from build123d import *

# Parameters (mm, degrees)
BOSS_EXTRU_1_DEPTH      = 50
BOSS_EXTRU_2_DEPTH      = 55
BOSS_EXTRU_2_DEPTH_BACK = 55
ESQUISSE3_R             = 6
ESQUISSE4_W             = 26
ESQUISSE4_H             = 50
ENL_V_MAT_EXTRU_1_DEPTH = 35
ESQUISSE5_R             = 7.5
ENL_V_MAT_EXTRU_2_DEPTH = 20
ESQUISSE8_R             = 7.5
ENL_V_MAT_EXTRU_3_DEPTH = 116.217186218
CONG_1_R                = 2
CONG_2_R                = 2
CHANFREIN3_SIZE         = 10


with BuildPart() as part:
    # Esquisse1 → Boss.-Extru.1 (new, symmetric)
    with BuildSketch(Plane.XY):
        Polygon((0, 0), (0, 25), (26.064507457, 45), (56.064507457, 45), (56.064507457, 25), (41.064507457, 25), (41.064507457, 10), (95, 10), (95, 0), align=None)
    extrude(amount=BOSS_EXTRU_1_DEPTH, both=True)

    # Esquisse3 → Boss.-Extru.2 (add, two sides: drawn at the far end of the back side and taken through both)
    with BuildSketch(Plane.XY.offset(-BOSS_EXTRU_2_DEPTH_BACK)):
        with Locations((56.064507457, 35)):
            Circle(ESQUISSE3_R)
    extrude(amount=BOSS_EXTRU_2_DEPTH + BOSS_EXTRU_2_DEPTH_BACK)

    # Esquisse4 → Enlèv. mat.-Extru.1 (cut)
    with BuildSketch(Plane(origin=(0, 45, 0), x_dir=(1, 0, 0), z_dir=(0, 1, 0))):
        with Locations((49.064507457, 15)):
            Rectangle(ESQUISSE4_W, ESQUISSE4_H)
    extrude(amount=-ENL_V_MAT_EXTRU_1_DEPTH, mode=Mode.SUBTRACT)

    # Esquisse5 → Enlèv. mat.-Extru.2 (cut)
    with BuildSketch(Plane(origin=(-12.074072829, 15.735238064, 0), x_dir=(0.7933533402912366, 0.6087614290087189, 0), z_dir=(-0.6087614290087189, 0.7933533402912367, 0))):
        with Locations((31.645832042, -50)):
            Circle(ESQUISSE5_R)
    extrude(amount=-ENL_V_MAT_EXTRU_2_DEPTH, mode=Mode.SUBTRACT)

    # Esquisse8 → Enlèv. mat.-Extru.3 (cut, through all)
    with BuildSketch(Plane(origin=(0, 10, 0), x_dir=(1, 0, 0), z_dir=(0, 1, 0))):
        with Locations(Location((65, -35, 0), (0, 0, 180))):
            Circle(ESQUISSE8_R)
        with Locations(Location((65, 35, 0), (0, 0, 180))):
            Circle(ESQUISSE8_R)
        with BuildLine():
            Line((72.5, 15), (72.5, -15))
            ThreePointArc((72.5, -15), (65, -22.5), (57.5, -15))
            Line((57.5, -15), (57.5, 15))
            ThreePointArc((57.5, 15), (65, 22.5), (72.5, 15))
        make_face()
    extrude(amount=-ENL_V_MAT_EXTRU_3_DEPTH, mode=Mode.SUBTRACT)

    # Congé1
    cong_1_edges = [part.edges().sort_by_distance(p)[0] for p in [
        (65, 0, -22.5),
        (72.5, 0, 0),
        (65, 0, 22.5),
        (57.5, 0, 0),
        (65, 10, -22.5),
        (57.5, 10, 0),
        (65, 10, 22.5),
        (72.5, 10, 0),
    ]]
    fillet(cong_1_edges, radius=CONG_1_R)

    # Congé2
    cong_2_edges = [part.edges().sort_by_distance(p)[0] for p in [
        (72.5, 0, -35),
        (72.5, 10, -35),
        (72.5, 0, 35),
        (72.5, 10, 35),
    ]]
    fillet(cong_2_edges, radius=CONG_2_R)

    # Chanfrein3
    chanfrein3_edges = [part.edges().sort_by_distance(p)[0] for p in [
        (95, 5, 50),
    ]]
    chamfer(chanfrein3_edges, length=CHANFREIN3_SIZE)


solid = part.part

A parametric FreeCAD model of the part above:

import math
import FreeCAD as App
import Part
import Sketcher
from FreeCAD import Vector
Q = App.Units.Quantity


def edges_at(feature, points):
    """Names of the edges that pass closest to the given points."""
    edges = feature.Shape.Edges
    near = lambda p: min(range(len(edges)), key=lambda i: edges[i].distToShape(Part.Vertex(*p))[0])
    return sorted({f"Edge{near(p) + 1}" for p in points})

doc = App.newDocument("Part")
params = doc.addObject("Spreadsheet::Sheet", "Params")
for row, (alias, value) in enumerate([
    ("sketch1_width", "95 mm"),
    ("sketch1_width2", "15 mm"),
    ("sketch1_width3", "30 mm"),
    ("sketch1_height", "25 mm"),
    ("sketch1_height2", "20 mm"),
    ("pad1_length", "100 mm"),
    ("sketch2_diameter", "12 mm"),
    ("pad2_length", "55 mm"),
    ("pad2_length2", "55 mm"),
    ("sketch3_width", "26 mm"),
    ("sketch3_height", "50 mm"),
    ("pocket1_length", "35 mm"),
    ("sketch4_diameter", "15 mm"),
    ("pocket2_length", "20 mm"),
    ("sketch5_diameter", "15 mm"),
    ("sketch5_height", "30 mm"),
    ("fillet_radius", "2 mm"),
    ("fillet2_radius", "2 mm"),
    ("chamfer_size", "10 mm"),
], start=1):
    params.set(f"A{row}", alias)
    params.set(f"B{row}", "=" + value)
    params.setAlias(f"B{row}", alias)

body = doc.addObject("PartDesign::Body", "Body")

# Sketch on XY plane
sketch1 = body.newObject("Sketcher::SketchObject", "Sketch")
sketch1.AttachmentSupport = (doc.getObject("XY_Plane"), [""])
sketch1.MapMode = "FlatFace"
sketch1.addGeometry(Part.LineSegment(Vector(0, 25, 0), Vector(0, 0, 0)), False)
sketch1.addGeometry(Part.LineSegment(Vector(0, 0, 0), Vector(95, 0, 0)), False)
sketch1.addGeometry(Part.LineSegment(Vector(95, 0, 0), Vector(95, 10, 0)), False)
sketch1.addGeometry(Part.LineSegment(Vector(95, 10, 0), Vector(41, 10, 0)), False)
sketch1.addGeometry(Part.LineSegment(Vector(41, 10, 0), Vector(41, 25, 0)), False)
sketch1.addGeometry(Part.LineSegment(Vector(41, 25, 0), Vector(56, 25, 0)), False)
sketch1.addGeometry(Part.LineSegment(Vector(56, 25, 0), Vector(56, 45, 0)), False)
sketch1.addGeometry(Part.LineSegment(Vector(56, 45, 0), Vector(26, 45, 0)), False)
sketch1.addGeometry(Part.LineSegment(Vector(26, 45, 0), Vector(0, 25, 0)), False)
sketch1.addConstraint(Sketcher.Constraint("Coincident", 0, 2, 1, 1))
sketch1.addConstraint(Sketcher.Constraint("Coincident", 1, 2, 2, 1))
sketch1.addConstraint(Sketcher.Constraint("Coincident", 2, 2, 3, 1))
sketch1.addConstraint(Sketcher.Constraint("Coincident", 3, 2, 4, 1))
sketch1.addConstraint(Sketcher.Constraint("Coincident", 4, 2, 5, 1))
sketch1.addConstraint(Sketcher.Constraint("Coincident", 5, 2, 6, 1))
sketch1.addConstraint(Sketcher.Constraint("Coincident", 6, 2, 7, 1))
sketch1.addConstraint(Sketcher.Constraint("Coincident", 7, 2, 8, 1))
sketch1.addConstraint(Sketcher.Constraint("Coincident", 8, 2, 0, 1))
sketch1.addConstraint(Sketcher.Constraint("Vertical", 0))
sketch1.addConstraint(Sketcher.Constraint("Horizontal", 1))
sketch1.addConstraint(Sketcher.Constraint("Vertical", 2))
sketch1.addConstraint(Sketcher.Constraint("Horizontal", 3))
sketch1.addConstraint(Sketcher.Constraint("Vertical", 4))
sketch1.addConstraint(Sketcher.Constraint("Horizontal", 5))
sketch1.addConstraint(Sketcher.Constraint("Vertical", 6))
sketch1.addConstraint(Sketcher.Constraint("Horizontal", 7))
sketch1.addConstraint(Sketcher.Constraint("Coincident", 0, 2, -1, 1))
sketch1.addConstraint(Sketcher.Constraint("Horizontal", 5, 2, 8, 2))
sketch1.addConstraint(Sketcher.Constraint("Equal", 5, 4))
sketch1.addConstraint(Sketcher.Constraint("DistanceX", 1, 1, 1, 2, 95.0))
sketch1.addConstraint(Sketcher.Constraint("DistanceX", 5, 1, 5, 2, 15.0))
sketch1.addConstraint(Sketcher.Constraint("DistanceX", 7, 2, 7, 1, 30.0))
sketch1.addConstraint(Sketcher.Constraint("DistanceY", 0, 2, 0, 1, 25.0))
sketch1.addConstraint(Sketcher.Constraint("DistanceY", 6, 1, 6, 2, 20.0))
sketch1.addConstraint(Sketcher.Constraint("Angle", 8, Q("-142.5 deg")))
sketch1.setExpression("Constraints[20]", "Params.sketch1_width")
sketch1.setExpression("Constraints[21]", "Params.sketch1_width2")
sketch1.setExpression("Constraints[22]", "Params.sketch1_width3")
sketch1.setExpression("Constraints[23]", "Params.sketch1_height")
sketch1.setExpression("Constraints[24]", "Params.sketch1_height2")
pad1 = body.newObject("PartDesign::Pad", "Pad")
pad1.Profile = sketch1
pad1.setExpression("Length", "Params.pad1_length")
pad1.Midplane = True

# Sketch on XY plane
sketch2 = body.newObject("Sketcher::SketchObject", "Sketch001")
sketch2.AttachmentSupport = (doc.getObject("XY_Plane"), [""])
sketch2.MapMode = "FlatFace"
sketch2.addGeometry(Part.Circle(Vector(56, 35, 0), Vector(0, 0, 1), 6), False)
sketch2.addConstraint(Sketcher.Constraint("Diameter", 0, 12.0))
sketch2.addConstraint(Sketcher.Constraint("DistanceY", -1, 1, 0, 3, 35.0))
sketch2.addConstraint(Sketcher.Constraint("DistanceX", -1, 1, 0, 3, 56.064507))
sketch2.setExpression("Constraints[0]", "Params.sketch2_diameter")
pad2 = body.newObject("PartDesign::Pad", "Pad001")
pad2.Profile = sketch2
pad2.Type = "TwoLengths"
pad2.setExpression("Length", "Params.pad2_length")
pad2.setExpression("Length2", "Params.pad2_length2")

# Sketch on XZ plane
sketch3 = body.newObject("Sketcher::SketchObject", "Sketch002")
sketch3.AttachmentSupport = (doc.getObject("XZ_Plane"), [""])
sketch3.MapMode = "FlatFace"
sketch3.AttachmentOffset = App.Placement(Vector(0, 0, -45), App.Rotation())
sketch3.addGeometry(Part.LineSegment(Vector(36, -40, 0), Vector(36, 10, 0)), False)
sketch3.addGeometry(Part.LineSegment(Vector(36, 10, 0), Vector(62, 10, 0)), False)
sketch3.addGeometry(Part.LineSegment(Vector(62, 10, 0), Vector(62, -40, 0)), False)
sketch3.addGeometry(Part.LineSegment(Vector(62, -40, 0), Vector(36, -40, 0)), False)
sketch3.addConstraint(Sketcher.Constraint("Coincident", 0, 2, 1, 1))
sketch3.addConstraint(Sketcher.Constraint("Coincident", 1, 2, 2, 1))
sketch3.addConstraint(Sketcher.Constraint("Coincident", 2, 2, 3, 1))
sketch3.addConstraint(Sketcher.Constraint("Coincident", 3, 2, 0, 1))
sketch3.addConstraint(Sketcher.Constraint("Vertical", 0))
sketch3.addConstraint(Sketcher.Constraint("Horizontal", 1))
sketch3.addConstraint(Sketcher.Constraint("Vertical", 2))
sketch3.addConstraint(Sketcher.Constraint("Horizontal", 3))
sketch3.addConstraint(Sketcher.Constraint("DistanceX", 1, 1, 1, 2, 26.0))
sketch3.addConstraint(Sketcher.Constraint("DistanceY", 0, 1, 0, 2, 50.0))
sketch3.addConstraint(Sketcher.Constraint("DistanceY", -1, 1, 0, 2, 10.0))
sketch3.addConstraint(Sketcher.Constraint("DistanceX", -1, 1, 0, 2, 36.064507))
sketch3.setExpression("Constraints[8]", "Params.sketch3_width")
sketch3.setExpression("Constraints[9]", "Params.sketch3_height")
pocket1 = body.newObject("PartDesign::Pocket", "Pocket")
pocket1.Profile = sketch3
pocket1.setExpression("Length", "Params.pocket1_length")
pocket1.Reversed = True

# Sketch on an angled plane
sketch4 = body.newObject("Sketcher::SketchObject", "Sketch003")
sketch4.Placement = App.Placement(Vector(-12.074073, 15.735238, 0), App.Rotation(Vector(0.79335334, 0.608761429, 0), Vector(0, 0, -1), Vector(-0.608761429, 0.79335334, 0), "ZXY"))
sketch4.addGeometry(Part.Circle(Vector(32, -50, 0), Vector(0, 0, 1), 8), False)
sketch4.addConstraint(Sketcher.Constraint("Diameter", 0, 15.0))
sketch4.addConstraint(Sketcher.Constraint("DistanceY", 0, 3, -1, 1, 50.0))
sketch4.addConstraint(Sketcher.Constraint("DistanceX", -1, 1, 0, 3, 31.645832))
sketch4.setExpression("Constraints[0]", "Params.sketch4_diameter")
pocket2 = body.newObject("PartDesign::Pocket", "Pocket001")
pocket2.Profile = sketch4
pocket2.setExpression("Length", "Params.pocket2_length")

# Sketch on XZ plane
sketch5 = body.newObject("Sketcher::SketchObject", "Sketch004")
sketch5.AttachmentSupport = (doc.getObject("XZ_Plane"), [""])
sketch5.MapMode = "FlatFace"
sketch5.AttachmentOffset = App.Placement(Vector(0, 0, -10), App.Rotation())
sketch5.addGeometry(Part.Circle(Vector(65, 35, 0), Vector(0, 0, 1), 8), False)
sketch5.addGeometry(Part.Circle(Vector(65, -35, 0), Vector(0, 0, 1), 8), False)
sketch5.addGeometry(Part.LineSegment(Vector(72, 15, 0), Vector(72, -15, 0)), False)
sketch5.addGeometry(Part.ArcOfCircle(Part.Circle(Vector(65, -15, 0), Vector(0, 0, 1), 8), math.radians(180), math.radians(360)), False)
sketch5.addGeometry(Part.LineSegment(Vector(58, -15, 0), Vector(58, 15, 0)), False)
sketch5.addGeometry(Part.ArcOfCircle(Part.Circle(Vector(65, 15, 0), Vector(0, 0, 1), 8), math.radians(0), math.radians(180)), False)
sketch5.addConstraint(Sketcher.Constraint("Tangent", 2, 2, 3, 2))
sketch5.addConstraint(Sketcher.Constraint("Tangent", 3, 1, 4, 1))
sketch5.addConstraint(Sketcher.Constraint("Tangent", 4, 2, 5, 2))
sketch5.addConstraint(Sketcher.Constraint("Tangent", 5, 1, 2, 1))
sketch5.addConstraint(Sketcher.Constraint("Vertical", 2))
sketch5.addConstraint(Sketcher.Constraint("Vertical", 4))
sketch5.addConstraint(Sketcher.Constraint("Equal", 0, 1))
sketch5.addConstraint(Sketcher.Constraint("Equal", 1, 3))
sketch5.addConstraint(Sketcher.Constraint("Symmetric", 0, 3, 1, 3, -1))
sketch5.addConstraint(Sketcher.Constraint("Vertical", 1, 3, 3, 3))
sketch5.addConstraint(Sketcher.Constraint("Diameter", 0, 15.0))
sketch5.addConstraint(Sketcher.Constraint("DistanceY", 2, 2, 2, 1, 30.0))
sketch5.addConstraint(Sketcher.Constraint("DistanceX", -1, 1, 0, 3, 65.0))
sketch5.addConstraint(Sketcher.Constraint("DistanceY", -1, 1, 0, 3, 35.0))
sketch5.addConstraint(Sketcher.Constraint("DistanceY", 3, 3, -1, 1, 15.0))
sketch5.setExpression("Constraints[10]", "Params.sketch5_diameter")
sketch5.setExpression("Constraints[11]", "Params.sketch5_height")
pocket3 = body.newObject("PartDesign::Pocket", "Pocket002")
pocket3.Profile = sketch5
pocket3.Type = "ThroughAll"
pocket3.Reversed = True
doc.recompute()

fillet = body.newObject("PartDesign::Fillet", "Fillet")
fillet.Base = (pocket3, edges_at(pocket3, [
    (65, 0, -22.5),
    (72.5, 0, 0),
    (65, 0, 22.5),
    (57.5, 0, 0),
    (65, 10, -22.5),
    (57.5, 10, 0),
    (65, 10, 22.5),
    (72.5, 10, 0),
]))
fillet.setExpression("Radius", "Params.fillet_radius")
doc.recompute()

fillet2 = body.newObject("PartDesign::Fillet", "Fillet001")
fillet2.Base = (fillet, edges_at(fillet, [
    (72.5, 0, -35),
    (72.5, 10, -35),
    (72.5, 0, 35),
    (72.5, 10, 35),
]))
fillet2.setExpression("Radius", "Params.fillet2_radius")
doc.recompute()

chamfer = body.newObject("PartDesign::Chamfer", "Chamfer")
chamfer.Base = (fillet2, edges_at(fillet2, [(95, 5, 50)]))
chamfer.setExpression("Size", "Params.chamfer_size")

doc.recompute()
